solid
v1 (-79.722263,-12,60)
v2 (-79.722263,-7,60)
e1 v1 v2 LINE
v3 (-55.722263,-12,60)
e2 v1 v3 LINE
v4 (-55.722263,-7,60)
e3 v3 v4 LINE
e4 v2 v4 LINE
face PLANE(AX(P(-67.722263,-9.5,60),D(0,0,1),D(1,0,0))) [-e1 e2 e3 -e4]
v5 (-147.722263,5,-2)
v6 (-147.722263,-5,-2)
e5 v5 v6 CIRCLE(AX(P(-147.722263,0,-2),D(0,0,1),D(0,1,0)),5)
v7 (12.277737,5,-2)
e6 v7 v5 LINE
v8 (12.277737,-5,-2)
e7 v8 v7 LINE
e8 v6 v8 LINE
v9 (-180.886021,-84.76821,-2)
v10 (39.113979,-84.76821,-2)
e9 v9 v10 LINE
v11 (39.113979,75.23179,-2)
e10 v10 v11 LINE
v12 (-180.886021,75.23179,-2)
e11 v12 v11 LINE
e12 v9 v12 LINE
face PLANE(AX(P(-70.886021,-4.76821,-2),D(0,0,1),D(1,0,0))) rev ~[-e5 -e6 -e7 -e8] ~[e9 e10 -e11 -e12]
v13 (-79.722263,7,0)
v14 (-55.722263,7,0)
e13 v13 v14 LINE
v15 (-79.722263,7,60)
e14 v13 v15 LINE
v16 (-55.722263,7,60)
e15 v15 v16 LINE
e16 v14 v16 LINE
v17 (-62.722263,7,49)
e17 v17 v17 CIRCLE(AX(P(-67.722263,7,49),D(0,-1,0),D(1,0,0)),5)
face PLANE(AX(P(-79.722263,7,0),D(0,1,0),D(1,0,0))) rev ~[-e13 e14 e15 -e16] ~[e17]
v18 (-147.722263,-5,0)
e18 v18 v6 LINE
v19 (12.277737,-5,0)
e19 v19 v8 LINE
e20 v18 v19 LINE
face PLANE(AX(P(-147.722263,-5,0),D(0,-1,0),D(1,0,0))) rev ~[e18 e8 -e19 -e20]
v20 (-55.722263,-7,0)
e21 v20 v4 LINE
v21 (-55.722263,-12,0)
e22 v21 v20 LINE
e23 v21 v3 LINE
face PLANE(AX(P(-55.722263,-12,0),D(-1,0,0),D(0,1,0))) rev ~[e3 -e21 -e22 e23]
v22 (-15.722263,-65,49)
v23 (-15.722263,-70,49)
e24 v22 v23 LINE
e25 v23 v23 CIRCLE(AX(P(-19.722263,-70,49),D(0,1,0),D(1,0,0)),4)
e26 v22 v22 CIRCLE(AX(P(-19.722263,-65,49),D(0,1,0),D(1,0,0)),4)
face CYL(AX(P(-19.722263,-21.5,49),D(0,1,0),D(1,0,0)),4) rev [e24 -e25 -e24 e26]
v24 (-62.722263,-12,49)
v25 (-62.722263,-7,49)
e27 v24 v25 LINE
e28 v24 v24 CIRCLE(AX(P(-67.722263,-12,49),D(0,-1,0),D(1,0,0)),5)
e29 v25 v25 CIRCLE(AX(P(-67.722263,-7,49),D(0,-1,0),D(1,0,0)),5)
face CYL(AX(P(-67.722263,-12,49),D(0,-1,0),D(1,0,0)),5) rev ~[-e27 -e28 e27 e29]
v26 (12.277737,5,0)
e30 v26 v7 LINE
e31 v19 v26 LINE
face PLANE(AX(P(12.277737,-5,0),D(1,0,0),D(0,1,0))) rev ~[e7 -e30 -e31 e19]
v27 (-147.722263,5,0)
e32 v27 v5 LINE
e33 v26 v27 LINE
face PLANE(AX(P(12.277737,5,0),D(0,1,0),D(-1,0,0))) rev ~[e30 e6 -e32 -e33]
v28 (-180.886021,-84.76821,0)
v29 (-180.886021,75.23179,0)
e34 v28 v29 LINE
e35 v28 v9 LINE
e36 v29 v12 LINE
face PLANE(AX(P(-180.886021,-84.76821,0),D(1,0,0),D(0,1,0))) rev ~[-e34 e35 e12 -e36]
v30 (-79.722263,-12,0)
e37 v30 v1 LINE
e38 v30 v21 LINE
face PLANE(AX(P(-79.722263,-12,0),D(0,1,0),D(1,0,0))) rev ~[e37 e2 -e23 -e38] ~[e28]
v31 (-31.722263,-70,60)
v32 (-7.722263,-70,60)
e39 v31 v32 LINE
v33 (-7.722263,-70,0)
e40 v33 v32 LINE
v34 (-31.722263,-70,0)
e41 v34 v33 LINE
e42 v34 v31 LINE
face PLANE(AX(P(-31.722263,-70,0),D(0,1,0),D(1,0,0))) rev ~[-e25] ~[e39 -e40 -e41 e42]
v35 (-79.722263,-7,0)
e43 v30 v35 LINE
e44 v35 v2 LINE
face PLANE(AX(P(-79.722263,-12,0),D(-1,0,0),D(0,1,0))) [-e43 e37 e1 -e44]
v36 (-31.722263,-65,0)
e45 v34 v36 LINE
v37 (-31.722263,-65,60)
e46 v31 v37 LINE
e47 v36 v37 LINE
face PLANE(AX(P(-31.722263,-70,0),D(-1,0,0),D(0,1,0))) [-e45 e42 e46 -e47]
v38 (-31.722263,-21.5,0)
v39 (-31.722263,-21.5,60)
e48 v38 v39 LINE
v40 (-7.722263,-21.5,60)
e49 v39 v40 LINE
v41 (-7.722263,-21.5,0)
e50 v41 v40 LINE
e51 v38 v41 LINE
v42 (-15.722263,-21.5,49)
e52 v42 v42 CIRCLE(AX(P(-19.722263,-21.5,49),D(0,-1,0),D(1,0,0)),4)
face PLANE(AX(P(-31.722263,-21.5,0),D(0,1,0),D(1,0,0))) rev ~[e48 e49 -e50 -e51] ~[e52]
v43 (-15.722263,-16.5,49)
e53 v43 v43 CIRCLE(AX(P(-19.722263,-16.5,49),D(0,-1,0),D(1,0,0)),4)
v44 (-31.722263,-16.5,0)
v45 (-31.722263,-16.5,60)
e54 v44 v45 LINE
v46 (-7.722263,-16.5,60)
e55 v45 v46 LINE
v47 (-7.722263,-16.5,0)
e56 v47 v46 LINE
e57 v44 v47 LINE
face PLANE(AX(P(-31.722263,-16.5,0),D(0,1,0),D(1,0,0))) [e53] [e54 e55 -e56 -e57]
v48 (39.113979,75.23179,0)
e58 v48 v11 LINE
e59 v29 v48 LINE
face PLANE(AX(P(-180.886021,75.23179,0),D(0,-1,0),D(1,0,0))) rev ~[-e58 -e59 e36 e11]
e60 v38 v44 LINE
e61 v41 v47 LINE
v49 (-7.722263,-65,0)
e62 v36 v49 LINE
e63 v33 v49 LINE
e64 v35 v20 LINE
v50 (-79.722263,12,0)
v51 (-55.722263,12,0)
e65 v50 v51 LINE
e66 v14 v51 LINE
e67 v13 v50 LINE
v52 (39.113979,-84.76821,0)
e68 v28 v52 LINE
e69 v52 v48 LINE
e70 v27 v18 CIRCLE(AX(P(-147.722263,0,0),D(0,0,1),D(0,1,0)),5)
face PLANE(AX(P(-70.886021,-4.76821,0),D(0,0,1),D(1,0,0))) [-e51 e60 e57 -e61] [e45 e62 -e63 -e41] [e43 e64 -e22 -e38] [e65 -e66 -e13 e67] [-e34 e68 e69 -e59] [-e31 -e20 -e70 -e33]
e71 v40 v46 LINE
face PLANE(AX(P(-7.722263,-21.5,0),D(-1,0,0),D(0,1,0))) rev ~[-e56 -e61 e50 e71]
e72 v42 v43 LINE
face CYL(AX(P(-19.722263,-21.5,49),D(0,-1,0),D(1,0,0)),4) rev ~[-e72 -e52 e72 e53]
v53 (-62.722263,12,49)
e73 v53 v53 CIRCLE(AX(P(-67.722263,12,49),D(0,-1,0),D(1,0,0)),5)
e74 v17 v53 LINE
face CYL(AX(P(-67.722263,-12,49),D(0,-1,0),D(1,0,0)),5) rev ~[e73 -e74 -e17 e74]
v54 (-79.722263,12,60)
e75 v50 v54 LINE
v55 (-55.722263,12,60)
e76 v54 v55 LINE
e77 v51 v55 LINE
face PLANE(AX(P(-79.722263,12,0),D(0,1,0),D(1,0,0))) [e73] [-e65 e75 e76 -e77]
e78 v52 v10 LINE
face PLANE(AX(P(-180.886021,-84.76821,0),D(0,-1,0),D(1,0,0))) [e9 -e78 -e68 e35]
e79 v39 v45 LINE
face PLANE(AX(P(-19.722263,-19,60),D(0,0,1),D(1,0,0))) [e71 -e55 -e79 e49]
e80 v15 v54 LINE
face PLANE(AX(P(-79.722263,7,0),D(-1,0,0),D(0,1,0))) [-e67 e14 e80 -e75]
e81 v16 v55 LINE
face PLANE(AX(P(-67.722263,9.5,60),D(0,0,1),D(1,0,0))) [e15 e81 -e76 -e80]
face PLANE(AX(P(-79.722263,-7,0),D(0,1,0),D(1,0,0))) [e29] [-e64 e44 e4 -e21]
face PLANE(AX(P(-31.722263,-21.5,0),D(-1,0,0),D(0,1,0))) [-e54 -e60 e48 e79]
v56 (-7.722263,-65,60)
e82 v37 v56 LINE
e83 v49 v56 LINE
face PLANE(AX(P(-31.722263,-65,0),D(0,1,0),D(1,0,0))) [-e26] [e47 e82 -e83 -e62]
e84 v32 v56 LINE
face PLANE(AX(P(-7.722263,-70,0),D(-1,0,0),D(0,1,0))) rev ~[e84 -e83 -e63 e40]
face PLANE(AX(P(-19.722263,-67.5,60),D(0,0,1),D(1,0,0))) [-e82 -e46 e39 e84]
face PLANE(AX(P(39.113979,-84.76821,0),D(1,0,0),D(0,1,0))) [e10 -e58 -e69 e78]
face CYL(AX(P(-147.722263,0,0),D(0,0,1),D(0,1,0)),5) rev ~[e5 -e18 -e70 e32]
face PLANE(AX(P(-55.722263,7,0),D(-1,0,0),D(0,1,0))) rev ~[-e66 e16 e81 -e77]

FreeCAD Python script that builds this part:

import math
import FreeCAD as App
import Part
import Sketcher
from FreeCAD import Vector
Q = App.Units.Quantity

doc = App.newDocument("Part")
params = doc.addObject("Spreadsheet::Sheet", "Params")
for row, (alias, value) in enumerate([
    ("sketch1_width", "220 mm"),
    ("sketch1_height", "160 mm"),
    ("pad1_length", "2 mm"),
    ("sketch2_radius", "5 mm"),
    ("sketch2_width", "160 mm"),
    ("pocket1_length", "25 mm"),
    ("sketch3_width", "24 mm"),
    ("sketch3_height", "5 mm"),
    ("pad2_length", "60 mm"),
    ("sketch4_diameter", "10 mm"),
    ("pocket2_length", "25 mm"),
    ("sketch5_width", "24 mm"),
    ("sketch5_height", "5 mm"),
    ("pad3_length", "60 mm"),
    ("sketch6_diameter", "8 mm"),
    ("pocket3_length", "25 mm"),
    ("sketch7_diameter", "8 mm"),
    ("pocket4_length", "100 mm"),
], start=1):
    params.set(f"A{row}", alias)
    params.set(f"B{row}", "=" + value)
    params.setAlias(f"B{row}", alias)

body = doc.addObject("PartDesign::Body", "Body")

# Sketch on XY plane
sketch1 = body.newObject("Sketcher::SketchObject", "Sketch")
sketch1.AttachmentSupport = (doc.getObject("XY_Plane"), [""])
sketch1.MapMode = "FlatFace"
sketch1.addGeometry(Part.LineSegment(Vector(-181, 75, 0), Vector(-181, -85, 0)), False)
sketch1.addGeometry(Part.LineSegment(Vector(-181, -85, 0), Vector(39, -85, 0)), False)
sketch1.addGeometry(Part.LineSegment(Vector(39, -85, 0), Vector(39, 75, 0)), False)
sketch1.addGeometry(Part.LineSegment(Vector(39, 75, 0), Vector(-181, 75, 0)), False)
sketch1.addConstraint(Sketcher.Constraint("Coincident", 0, 2, 1, 1))
sketch1.addConstraint(Sketcher.Constraint("Coincident", 1, 2, 2, 1))
sketch1.addConstraint(Sketcher.Constraint("Coincident", 2, 2, 3, 1))
sketch1.addConstraint(Sketcher.Constraint("Coincident", 3, 2, 0, 1))
sketch1.addConstraint(Sketcher.Constraint("Vertical", 0))
sketch1.addConstraint(Sketcher.Constraint("Horizontal", 1))
sketch1.addConstraint(Sketcher.Constraint("Vertical", 2))
sketch1.addConstraint(Sketcher.Constraint("Horizontal", 3))
sketch1.addConstraint(Sketcher.Constraint("DistanceX", 1, 1, 1, 2, Q("220 mm")))
sketch1.addConstraint(Sketcher.Constraint("DistanceY", 0, 2, 0, 1, Q("160 mm")))
sketch1.addConstraint(Sketcher.Constraint("DistanceX", 0, 2, -1, 1, Q("180.886021 mm")))
sketch1.addConstraint(Sketcher.Constraint("DistanceY", 0, 2, -1, 1, Q("84.76821 mm")))
sketch1.setExpression("Constraints[8]", "Params.sketch1_width")
sketch1.setExpression("Constraints[9]", "Params.sketch1_height")
pad1 = body.newObject("PartDesign::Pad", "Pad")
pad1.Profile = sketch1
pad1.setExpression("Length", "Params.pad1_length")
pad1.Reversed = True

# Sketch on XY plane
sketch2 = body.newObject("Sketcher::SketchObject", "Sketch001")
sketch2.AttachmentSupport = (doc.getObject("XY_Plane"), [""])
sketch2.MapMode = "FlatFace"
sketch2.addGeometry(Part.LineSegment(Vector(12, -5, 0), Vector(12, 5, 0)), False)
sketch2.addGeometry(Part.LineSegment(Vector(12, 5, 0), Vector(-148, 5, 0)), False)
sketch2.addGeometry(Part.ArcOfCircle(Part.Circle(Vector(-148, 0, 0), Vector(0, 0, 1), 5), math.radians(90), math.radians(270)), False)
sketch2.addGeometry(Part.LineSegment(Vector(-148, -5, 0), Vector(12, -5, 0)), False)
sketch2.addConstraint(Sketcher.Constraint("Coincident", 0, 2, 1, 1))
sketch2.addConstraint(Sketcher.Constraint("Tangent", 1, 2, 2, 1))
sketch2.addConstraint(Sketcher.Constraint("Tangent", 2, 2, 3, 1))
sketch2.addConstraint(Sketcher.Constraint("Coincident", 3, 2, 0, 1))
sketch2.addConstraint(Sketcher.Constraint("Vertical", 0))
sketch2.addConstraint(Sketcher.Constraint("Horizontal", 1))
sketch2.addConstraint(Sketcher.Constraint("Horizontal", 3))
sketch2.addConstraint(Sketcher.Constraint("PointOnObject", 2, 3, -1))
sketch2.addConstraint(Sketcher.Constraint("Radius", 2, Q("5 mm")))
sketch2.addConstraint(Sketcher.Constraint("DistanceX", 1, 2, 1, 1, Q("160 mm")))
sketch2.addConstraint(Sketcher.Constraint("DistanceX", 2, 3, -1, 1, Q("147.722263 mm")))
sketch2.setExpression("Constraints[8]", "Params.sketch2_radius")
sketch2.setExpression("Constraints[9]", "Params.sketch2_width")
pocket1 = body.newObject("PartDesign::Pocket", "Pocket")
pocket1.Profile = sketch2
pocket1.setExpression("Length", "Params.pocket1_length")

# Sketch on XY plane
sketch3 = body.newObject("Sketcher::SketchObject", "Sketch002")
sketch3.AttachmentSupport = (doc.getObject("XY_Plane"), [""])
sketch3.MapMode = "FlatFace"
sketch3.addGeometry(Part.LineSegment(Vector(-80, -7, 0), Vector(-80, -12, 0)), False)
sketch3.addGeometry(Part.LineSegment(Vector(-80, -12, 0), Vector(-56, -12, 0)), False)
sketch3.addGeometry(Part.LineSegment(Vector(-56, -12, 0), Vector(-56, -7, 0)), False)
sketch3.addGeometry(Part.LineSegment(Vector(-56, -7, 0), Vector(-80, -7, 0)), False)
sketch3.addGeometry(Part.LineSegment(Vector(-80, 12, 0), Vector(-80, 7, 0)), False)
sketch3.addGeometry(Part.LineSegment(Vector(-80, 7, 0), Vector(-56, 7, 0)), False)
sketch3.addGeometry(Part.LineSegment(Vector(-56, 7, 0), Vector(-56, 12, 0)), False)
sketch3.addGeometry(Part.LineSegment(Vector(-56, 12, 0), Vector(-80, 12, 0)), False)
sketch3.addConstraint(Sketcher.Constraint("Coincident", 0, 2, 1, 1))
sketch3.addConstraint(Sketcher.Constraint("Coincident", 1, 2, 2, 1))
sketch3.addConstraint(Sketcher.Constraint("Coincident", 2, 2, 3, 1))
sketch3.addConstraint(Sketcher.Constraint("Coincident", 3, 2, 0, 1))
sketch3.addConstraint(Sketcher.Constraint("Coincident", 4, 2, 5, 1))
sketch3.addConstraint(Sketcher.Constraint("Coincident", 5, 2, 6, 1))
sketch3.addConstraint(Sketcher.Constraint("Coincident", 6, 2, 7, 1))
sketch3.addConstraint(Sketcher.Constraint("Coincident", 7, 2, 4, 1))
sketch3.addConstraint(Sketcher.Constraint("Vertical", 0))
sketch3.addConstraint(Sketcher.Constraint("Horizontal", 1))
sketch3.addConstraint(Sketcher.Constraint("Vertical", 2))
sketch3.addConstraint(Sketcher.Constraint("Horizontal", 3))
sketch3.addConstraint(Sketcher.Constraint("Vertical", 4))
sketch3.addConstraint(Sketcher.Constraint("Horizontal", 5))
sketch3.addConstraint(Sketcher.Constraint("Vertical", 6))
sketch3.addConstraint(Sketcher.Constraint("Horizontal", 7))
sketch3.addConstraint(Sketcher.Constraint("Symmetric", 3, 2, 4, 2, -1))
sketch3.addConstraint(Sketcher.Constraint("Symmetric", 1, 2, 6, 2, -1))
sketch3.addConstraint(Sketcher.Constraint("DistanceX", 1, 1, 1, 2, Q("24 mm")))
sketch3.addConstraint(Sketcher.Constraint("DistanceY", 0, 2, 0, 1, Q("5 mm")))
sketch3.addConstraint(Sketcher.Constraint("DistanceY", 0, 2, -1, 1, Q("12 mm")))
sketch3.addConstraint(Sketcher.Constraint("DistanceX", 0, 2, -1, 1, Q("79.722263 mm")))
sketch3.setExpression("Constraints[18]", "Params.sketch3_width")
sketch3.setExpression("Constraints[19]", "Params.sketch3_height")
pad2 = body.newObject("PartDesign::Pad", "Pad001")
pad2.Profile = sketch3
pad2.setExpression("Length", "Params.pad2_length")

# Sketch on XZ plane
sketch4 = body.newObject("Sketcher::SketchObject", "Sketch003")
sketch4.AttachmentSupport = (doc.getObject("XZ_Plane"), [""])
sketch4.MapMode = "FlatFace"
sketch4.AttachmentOffset = App.Placement(Vector(0, 0, 12), App.Rotation())
sketch4.addGeometry(Part.Circle(Vector(-68, 49, 0), Vector(0, 0, 1), 5), False)
sketch4.addConstraint(Sketcher.Constraint("Diameter", 0, Q("10 mm")))
sketch4.addConstraint(Sketcher.Constraint("DistanceY", -1, 1, 0, 3, Q("49 mm")))
sketch4.addConstraint(Sketcher.Constraint("DistanceX", 0, 3, -1, 1, Q("67.722263 mm")))
sketch4.setExpression("Constraints[0]", "Params.sketch4_diameter")
pocket2 = body.newObject("PartDesign::Pocket", "Pocket001")
pocket2.Profile = sketch4
pocket2.setExpression("Length", "Params.pocket2_length")

# Sketch on XY plane
sketch5 = body.newObject("Sketcher::SketchObject", "Sketch004")
sketch5.AttachmentSupport = (doc.getObject("XY_Plane"), [""])
sketch5.MapMode = "FlatFace"
sketch5.addGeometry(Part.LineSegment(Vector(-32, -16, 0), Vector(-32, -22, 0)), False)
sketch5.addGeometry(Part.LineSegment(Vector(-32, -22, 0), Vector(-8, -22, 0)), False)
sketch5.addGeometry(Part.LineSegment(Vector(-8, -22, 0), Vector(-8, -16, 0)), False)
sketch5.addGeometry(Part.LineSegment(Vector(-8, -16, 0), Vector(-32, -16, 0)), False)
sketch5.addGeometry(Part.LineSegment(Vector(-32, -65, 0), Vector(-32, -70, 0)), False)
sketch5.addGeometry(Part.LineSegment(Vector(-32, -70, 0), Vector(-8, -70, 0)), False)
sketch5.addGeometry(Part.LineSegment(Vector(-8, -70, 0), Vector(-8, -65, 0)), False)
sketch5.addGeometry(Part.LineSegment(Vector(-8, -65, 0), Vector(-32, -65, 0)), False)
sketch5.addConstraint(Sketcher.Constraint("Coincident", 0, 2, 1, 1))
sketch5.addConstraint(Sketcher.Constraint("Coincident", 1, 2, 2, 1))
sketch5.addConstraint(Sketcher.Constraint("Coincident", 2, 2, 3, 1))
sketch5.addConstraint(Sketcher.Constraint("Coincident", 3, 2, 0, 1))
sketch5.addConstraint(Sketcher.Constraint("Coincident", 4, 2, 5, 1))
sketch5.addConstraint(Sketcher.Constraint("Coincident", 5, 2, 6, 1))
sketch5.addConstraint(Sketcher.Constraint("Coincident", 6, 2, 7, 1))
sketch5.addConstraint(Sketcher.Constraint("Coincident", 7, 2, 4, 1))
sketch5.addConstraint(Sketcher.Constraint("Vertical", 0))
sketch5.addConstraint(Sketcher.Constraint("Horizontal", 1))
sketch5.addConstraint(Sketcher.Constraint("Vertical", 2))
sketch5.addConstraint(Sketcher.Constraint("Horizontal", 3))
sketch5.addConstraint(Sketcher.Constraint("Vertical", 4))
sketch5.addConstraint(Sketcher.Constraint("Horizontal", 5))
sketch5.addConstraint(Sketcher.Constraint("Vertical", 6))
sketch5.addConstraint(Sketcher.Constraint("Horizontal", 7))
sketch5.addConstraint(Sketcher.Constraint("Vertical", 3, 2, 4, 2))
sketch5.addConstraint(Sketcher.Constraint("Vertical", 2, 2, 5, 2))
sketch5.addConstraint(Sketcher.Constraint("Equal", 2, 4))
sketch5.addConstraint(Sketcher.Constraint("DistanceX", 1, 1, 1, 2, Q("24 mm")))
sketch5.addConstraint(Sketcher.Constraint("DistanceY", 0, 2, 0, 1, Q("5 mm")))
sketch5.addConstraint(Sketcher.Constraint("DistanceY", 4, 2, -1, 1, Q("70 mm")))
sketch5.addConstraint(Sketcher.Constraint("DistanceY", 0, 2, -1, 1, Q("21.5 mm")))
sketch5.addConstraint(Sketcher.Constraint("DistanceX", 0, 2, -1, 1, Q("31.722263 mm")))
sketch5.setExpression("Constraints[19]", "Params.sketch5_width")
sketch5.setExpression("Constraints[20]", "Params.sketch5_height")
pad3 = body.newObject("PartDesign::Pad", "Pad002")
pad3.Profile = sketch5
pad3.setExpression("Length", "Params.pad3_length")

# Sketch on XZ plane
sketch6 = body.newObject("Sketcher::SketchObject", "Sketch005")
sketch6.AttachmentSupport = (doc.getObject("XZ_Plane"), [""])
sketch6.MapMode = "FlatFace"
sketch6.AttachmentOffset = App.Placement(Vector(0, 0, 21.5), App.Rotation())
sketch6.addGeometry(Part.Circle(Vector(-19.7, 49, 0), Vector(0, 0, 1), 4), False)
sketch6.addConstraint(Sketcher.Constraint("Diameter", 0, Q("8 mm")))
sketch6.addConstraint(Sketcher.Constraint("DistanceY", -1, 1, 0, 3, Q("49 mm")))
sketch6.addConstraint(Sketcher.Constraint("DistanceX", 0, 3, -1, 1, Q("19.722263 mm")))
sketch6.setExpression("Constraints[0]", "Params.sketch6_diameter")
pocket3 = body.newObject("PartDesign::Pocket", "Pocket002")
pocket3.Profile = sketch6
pocket3.setExpression("Length", "Params.pocket3_length")

# Sketch on XZ plane
sketch7 = body.newObject("Sketcher::SketchObject", "Sketch006")
sketch7.AttachmentSupport = (doc.getObject("XZ_Plane"), [""])
sketch7.MapMode = "FlatFace"
sketch7.AttachmentOffset = App.Placement(Vector(0, 0, 21.5), App.Rotation())
sketch7.addGeometry(Part.Circle(Vector(-19.7, 49, 0), Vector(0, 0, 1), 4), False)
sketch7.addConstraint(Sketcher.Constraint("Diameter", 0, Q("8 mm")))
sketch7.addConstraint(Sketcher.Constraint("DistanceY", -1, 1, 0, 3, Q("49 mm")))
sketch7.addConstraint(Sketcher.Constraint("DistanceX", 0, 3, -1, 1, Q("19.722263 mm")))
sketch7.setExpression("Constraints[0]", "Params.sketch7_diameter")
pocket4 = body.newObject("PartDesign::Pocket", "Pocket003")
pocket4.Profile = sketch7
pocket4.setExpression("Length", "Params.pocket4_length")
pocket4.Reversed = True

doc.recompute()
